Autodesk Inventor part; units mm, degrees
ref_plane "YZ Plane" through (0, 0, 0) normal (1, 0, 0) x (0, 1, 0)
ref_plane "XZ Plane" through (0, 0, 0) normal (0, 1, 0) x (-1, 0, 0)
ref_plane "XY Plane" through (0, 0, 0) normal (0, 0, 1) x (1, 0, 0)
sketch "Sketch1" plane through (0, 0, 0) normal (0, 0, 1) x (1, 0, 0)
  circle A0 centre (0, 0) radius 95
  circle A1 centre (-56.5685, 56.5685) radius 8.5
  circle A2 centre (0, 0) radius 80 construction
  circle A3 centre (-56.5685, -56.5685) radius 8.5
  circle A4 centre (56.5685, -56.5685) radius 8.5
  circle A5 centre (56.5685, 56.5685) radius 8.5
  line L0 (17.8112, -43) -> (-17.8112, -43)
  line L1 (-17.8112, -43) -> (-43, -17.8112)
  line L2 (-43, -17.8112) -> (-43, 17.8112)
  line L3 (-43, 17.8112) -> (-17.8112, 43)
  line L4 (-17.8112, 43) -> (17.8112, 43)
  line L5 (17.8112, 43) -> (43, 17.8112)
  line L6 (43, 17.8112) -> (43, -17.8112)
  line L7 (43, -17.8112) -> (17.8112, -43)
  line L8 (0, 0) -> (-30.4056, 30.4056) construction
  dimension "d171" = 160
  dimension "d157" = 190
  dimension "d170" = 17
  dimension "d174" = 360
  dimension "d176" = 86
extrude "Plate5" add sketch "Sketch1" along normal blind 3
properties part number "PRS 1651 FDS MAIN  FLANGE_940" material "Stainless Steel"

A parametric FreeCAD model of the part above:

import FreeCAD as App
import Part
import Sketcher
Q = App.Units.Quantity


def add_polygon(sketch, points):
    """Adds a closed chain of lines whose ends are joined by coincident constraints."""
    first, n = sketch.GeometryCount, len(points)
    for a, b in zip(points, points[1:] + points[:1]):
        sketch.addGeometry(Part.LineSegment(App.Vector(*a, 0), App.Vector(*b, 0)), False)
    for i in range(n):
        sketch.addConstraint(Sketcher.Constraint("Coincident", first + i, 2, first + (i + 1) % n, 1))

doc = App.newDocument("Part")
params = doc.addObject("Spreadsheet::Sheet", "Params")
for row, (alias, value) in enumerate([
    ("sketch1_diameter", "190 mm"),
    ("sketch1_diameter2", "17 mm"),
    ("pad1_length", "3 mm"),
], start=1):
    params.set(f"A{row}", alias)
    params.set(f"B{row}", "=" + value)
    params.setAlias(f"B{row}", alias)

body = doc.addObject("PartDesign::Body", "Body")

# Sketch on XY plane
sketch1 = body.newObject("Sketcher::SketchObject", "Sketch")
sketch1.AttachmentSupport = (doc.getObject("XY_Plane"), [""])
sketch1.MapMode = "FlatFace"
sketch1.addGeometry(Part.Circle(App.Vector(0, 0, 0), App.Vector(0, 0, 1), 95), False)  # 0
sketch1.addGeometry(Part.Circle(App.Vector(-57, -57, 0), App.Vector(0, 0, 1), 8), False)  # 1
sketch1.addGeometry(Part.Circle(App.Vector(57, -57, 0), App.Vector(0, 0, 1), 8), False)  # 2
sketch1.addGeometry(Part.Circle(App.Vector(-57, 57, 0), App.Vector(0, 0, 1), 8), False)  # 3
add_polygon(sketch1, [(43, -18), (18, -43), (-18, -43), (-43, -18), (-43, 18), (-18, 43), (18, 43), (43, 18)])  # lines 4-11
sketch1.addGeometry(Part.Circle(App.Vector(57, 57, 0), App.Vector(0, 0, 1), 8), False)  # 12
sketch1.addConstraint([
    Sketcher.Constraint("Horizontal", 5),
    Sketcher.Constraint("Vertical", 7),
    Sketcher.Constraint("Horizontal", 9),
    Sketcher.Constraint("Vertical", 11),
    Sketcher.Constraint("Coincident", 0, 3, -1, 1),
    Sketcher.Constraint("Equal", 1, 2),
    Sketcher.Constraint("Equal", 2, 3),
    Sketcher.Constraint("Equal", 3, 12),
    Sketcher.Constraint("Symmetric", 2, 3, 3, 3, -1, 1),
    Sketcher.Constraint("Symmetric", 1, 3, 12, 3, -1, 1),
    Sketcher.Constraint("Symmetric", 4, 2, 8, 2, -1, 1),
    Sketcher.Constraint("Symmetric", 6, 2, 10, 2, -1, 1),
    Sketcher.Constraint("Symmetric", 1, 3, 2, 3, -2),
    Sketcher.Constraint("Perpendicular", 4, 6),
    Sketcher.Constraint("Perpendicular", 6, 8),
    Sketcher.Constraint("Perpendicular", 8, 10),
    Sketcher.Constraint("Horizontal", 7, 2, 10, 2),
    Sketcher.Constraint("Vertical", 5, 2, 8, 2),
    Sketcher.Constraint("Equal", 9, 7),
    Sketcher.Constraint("Diameter", 0, Q("190 mm")),
    Sketcher.Constraint("Diameter", 1, Q("17 mm")),
    Sketcher.Constraint("DistanceY", 4, 2, -1, 1, Q("43 mm")),
    Sketcher.Constraint("DistanceX", 5, 2, 5, 1, Q("35.6224 mm")),
    Sketcher.Constraint("DistanceX", 1, 3, 2, 3, Q("113.137 mm")),
    Sketcher.Constraint("DistanceY", 1, 3, 3, 3, Q("113.137 mm")),
])
sketch1.setExpression("Constraints[27]", "Params.sketch1_diameter")
sketch1.setExpression("Constraints[28]", "Params.sketch1_diameter2")
pad1 = body.newObject("PartDesign::Pad", "Pad")
pad1.Profile = sketch1
pad1.setExpression("Length", "Params.pad1_length")

doc.recompute()
